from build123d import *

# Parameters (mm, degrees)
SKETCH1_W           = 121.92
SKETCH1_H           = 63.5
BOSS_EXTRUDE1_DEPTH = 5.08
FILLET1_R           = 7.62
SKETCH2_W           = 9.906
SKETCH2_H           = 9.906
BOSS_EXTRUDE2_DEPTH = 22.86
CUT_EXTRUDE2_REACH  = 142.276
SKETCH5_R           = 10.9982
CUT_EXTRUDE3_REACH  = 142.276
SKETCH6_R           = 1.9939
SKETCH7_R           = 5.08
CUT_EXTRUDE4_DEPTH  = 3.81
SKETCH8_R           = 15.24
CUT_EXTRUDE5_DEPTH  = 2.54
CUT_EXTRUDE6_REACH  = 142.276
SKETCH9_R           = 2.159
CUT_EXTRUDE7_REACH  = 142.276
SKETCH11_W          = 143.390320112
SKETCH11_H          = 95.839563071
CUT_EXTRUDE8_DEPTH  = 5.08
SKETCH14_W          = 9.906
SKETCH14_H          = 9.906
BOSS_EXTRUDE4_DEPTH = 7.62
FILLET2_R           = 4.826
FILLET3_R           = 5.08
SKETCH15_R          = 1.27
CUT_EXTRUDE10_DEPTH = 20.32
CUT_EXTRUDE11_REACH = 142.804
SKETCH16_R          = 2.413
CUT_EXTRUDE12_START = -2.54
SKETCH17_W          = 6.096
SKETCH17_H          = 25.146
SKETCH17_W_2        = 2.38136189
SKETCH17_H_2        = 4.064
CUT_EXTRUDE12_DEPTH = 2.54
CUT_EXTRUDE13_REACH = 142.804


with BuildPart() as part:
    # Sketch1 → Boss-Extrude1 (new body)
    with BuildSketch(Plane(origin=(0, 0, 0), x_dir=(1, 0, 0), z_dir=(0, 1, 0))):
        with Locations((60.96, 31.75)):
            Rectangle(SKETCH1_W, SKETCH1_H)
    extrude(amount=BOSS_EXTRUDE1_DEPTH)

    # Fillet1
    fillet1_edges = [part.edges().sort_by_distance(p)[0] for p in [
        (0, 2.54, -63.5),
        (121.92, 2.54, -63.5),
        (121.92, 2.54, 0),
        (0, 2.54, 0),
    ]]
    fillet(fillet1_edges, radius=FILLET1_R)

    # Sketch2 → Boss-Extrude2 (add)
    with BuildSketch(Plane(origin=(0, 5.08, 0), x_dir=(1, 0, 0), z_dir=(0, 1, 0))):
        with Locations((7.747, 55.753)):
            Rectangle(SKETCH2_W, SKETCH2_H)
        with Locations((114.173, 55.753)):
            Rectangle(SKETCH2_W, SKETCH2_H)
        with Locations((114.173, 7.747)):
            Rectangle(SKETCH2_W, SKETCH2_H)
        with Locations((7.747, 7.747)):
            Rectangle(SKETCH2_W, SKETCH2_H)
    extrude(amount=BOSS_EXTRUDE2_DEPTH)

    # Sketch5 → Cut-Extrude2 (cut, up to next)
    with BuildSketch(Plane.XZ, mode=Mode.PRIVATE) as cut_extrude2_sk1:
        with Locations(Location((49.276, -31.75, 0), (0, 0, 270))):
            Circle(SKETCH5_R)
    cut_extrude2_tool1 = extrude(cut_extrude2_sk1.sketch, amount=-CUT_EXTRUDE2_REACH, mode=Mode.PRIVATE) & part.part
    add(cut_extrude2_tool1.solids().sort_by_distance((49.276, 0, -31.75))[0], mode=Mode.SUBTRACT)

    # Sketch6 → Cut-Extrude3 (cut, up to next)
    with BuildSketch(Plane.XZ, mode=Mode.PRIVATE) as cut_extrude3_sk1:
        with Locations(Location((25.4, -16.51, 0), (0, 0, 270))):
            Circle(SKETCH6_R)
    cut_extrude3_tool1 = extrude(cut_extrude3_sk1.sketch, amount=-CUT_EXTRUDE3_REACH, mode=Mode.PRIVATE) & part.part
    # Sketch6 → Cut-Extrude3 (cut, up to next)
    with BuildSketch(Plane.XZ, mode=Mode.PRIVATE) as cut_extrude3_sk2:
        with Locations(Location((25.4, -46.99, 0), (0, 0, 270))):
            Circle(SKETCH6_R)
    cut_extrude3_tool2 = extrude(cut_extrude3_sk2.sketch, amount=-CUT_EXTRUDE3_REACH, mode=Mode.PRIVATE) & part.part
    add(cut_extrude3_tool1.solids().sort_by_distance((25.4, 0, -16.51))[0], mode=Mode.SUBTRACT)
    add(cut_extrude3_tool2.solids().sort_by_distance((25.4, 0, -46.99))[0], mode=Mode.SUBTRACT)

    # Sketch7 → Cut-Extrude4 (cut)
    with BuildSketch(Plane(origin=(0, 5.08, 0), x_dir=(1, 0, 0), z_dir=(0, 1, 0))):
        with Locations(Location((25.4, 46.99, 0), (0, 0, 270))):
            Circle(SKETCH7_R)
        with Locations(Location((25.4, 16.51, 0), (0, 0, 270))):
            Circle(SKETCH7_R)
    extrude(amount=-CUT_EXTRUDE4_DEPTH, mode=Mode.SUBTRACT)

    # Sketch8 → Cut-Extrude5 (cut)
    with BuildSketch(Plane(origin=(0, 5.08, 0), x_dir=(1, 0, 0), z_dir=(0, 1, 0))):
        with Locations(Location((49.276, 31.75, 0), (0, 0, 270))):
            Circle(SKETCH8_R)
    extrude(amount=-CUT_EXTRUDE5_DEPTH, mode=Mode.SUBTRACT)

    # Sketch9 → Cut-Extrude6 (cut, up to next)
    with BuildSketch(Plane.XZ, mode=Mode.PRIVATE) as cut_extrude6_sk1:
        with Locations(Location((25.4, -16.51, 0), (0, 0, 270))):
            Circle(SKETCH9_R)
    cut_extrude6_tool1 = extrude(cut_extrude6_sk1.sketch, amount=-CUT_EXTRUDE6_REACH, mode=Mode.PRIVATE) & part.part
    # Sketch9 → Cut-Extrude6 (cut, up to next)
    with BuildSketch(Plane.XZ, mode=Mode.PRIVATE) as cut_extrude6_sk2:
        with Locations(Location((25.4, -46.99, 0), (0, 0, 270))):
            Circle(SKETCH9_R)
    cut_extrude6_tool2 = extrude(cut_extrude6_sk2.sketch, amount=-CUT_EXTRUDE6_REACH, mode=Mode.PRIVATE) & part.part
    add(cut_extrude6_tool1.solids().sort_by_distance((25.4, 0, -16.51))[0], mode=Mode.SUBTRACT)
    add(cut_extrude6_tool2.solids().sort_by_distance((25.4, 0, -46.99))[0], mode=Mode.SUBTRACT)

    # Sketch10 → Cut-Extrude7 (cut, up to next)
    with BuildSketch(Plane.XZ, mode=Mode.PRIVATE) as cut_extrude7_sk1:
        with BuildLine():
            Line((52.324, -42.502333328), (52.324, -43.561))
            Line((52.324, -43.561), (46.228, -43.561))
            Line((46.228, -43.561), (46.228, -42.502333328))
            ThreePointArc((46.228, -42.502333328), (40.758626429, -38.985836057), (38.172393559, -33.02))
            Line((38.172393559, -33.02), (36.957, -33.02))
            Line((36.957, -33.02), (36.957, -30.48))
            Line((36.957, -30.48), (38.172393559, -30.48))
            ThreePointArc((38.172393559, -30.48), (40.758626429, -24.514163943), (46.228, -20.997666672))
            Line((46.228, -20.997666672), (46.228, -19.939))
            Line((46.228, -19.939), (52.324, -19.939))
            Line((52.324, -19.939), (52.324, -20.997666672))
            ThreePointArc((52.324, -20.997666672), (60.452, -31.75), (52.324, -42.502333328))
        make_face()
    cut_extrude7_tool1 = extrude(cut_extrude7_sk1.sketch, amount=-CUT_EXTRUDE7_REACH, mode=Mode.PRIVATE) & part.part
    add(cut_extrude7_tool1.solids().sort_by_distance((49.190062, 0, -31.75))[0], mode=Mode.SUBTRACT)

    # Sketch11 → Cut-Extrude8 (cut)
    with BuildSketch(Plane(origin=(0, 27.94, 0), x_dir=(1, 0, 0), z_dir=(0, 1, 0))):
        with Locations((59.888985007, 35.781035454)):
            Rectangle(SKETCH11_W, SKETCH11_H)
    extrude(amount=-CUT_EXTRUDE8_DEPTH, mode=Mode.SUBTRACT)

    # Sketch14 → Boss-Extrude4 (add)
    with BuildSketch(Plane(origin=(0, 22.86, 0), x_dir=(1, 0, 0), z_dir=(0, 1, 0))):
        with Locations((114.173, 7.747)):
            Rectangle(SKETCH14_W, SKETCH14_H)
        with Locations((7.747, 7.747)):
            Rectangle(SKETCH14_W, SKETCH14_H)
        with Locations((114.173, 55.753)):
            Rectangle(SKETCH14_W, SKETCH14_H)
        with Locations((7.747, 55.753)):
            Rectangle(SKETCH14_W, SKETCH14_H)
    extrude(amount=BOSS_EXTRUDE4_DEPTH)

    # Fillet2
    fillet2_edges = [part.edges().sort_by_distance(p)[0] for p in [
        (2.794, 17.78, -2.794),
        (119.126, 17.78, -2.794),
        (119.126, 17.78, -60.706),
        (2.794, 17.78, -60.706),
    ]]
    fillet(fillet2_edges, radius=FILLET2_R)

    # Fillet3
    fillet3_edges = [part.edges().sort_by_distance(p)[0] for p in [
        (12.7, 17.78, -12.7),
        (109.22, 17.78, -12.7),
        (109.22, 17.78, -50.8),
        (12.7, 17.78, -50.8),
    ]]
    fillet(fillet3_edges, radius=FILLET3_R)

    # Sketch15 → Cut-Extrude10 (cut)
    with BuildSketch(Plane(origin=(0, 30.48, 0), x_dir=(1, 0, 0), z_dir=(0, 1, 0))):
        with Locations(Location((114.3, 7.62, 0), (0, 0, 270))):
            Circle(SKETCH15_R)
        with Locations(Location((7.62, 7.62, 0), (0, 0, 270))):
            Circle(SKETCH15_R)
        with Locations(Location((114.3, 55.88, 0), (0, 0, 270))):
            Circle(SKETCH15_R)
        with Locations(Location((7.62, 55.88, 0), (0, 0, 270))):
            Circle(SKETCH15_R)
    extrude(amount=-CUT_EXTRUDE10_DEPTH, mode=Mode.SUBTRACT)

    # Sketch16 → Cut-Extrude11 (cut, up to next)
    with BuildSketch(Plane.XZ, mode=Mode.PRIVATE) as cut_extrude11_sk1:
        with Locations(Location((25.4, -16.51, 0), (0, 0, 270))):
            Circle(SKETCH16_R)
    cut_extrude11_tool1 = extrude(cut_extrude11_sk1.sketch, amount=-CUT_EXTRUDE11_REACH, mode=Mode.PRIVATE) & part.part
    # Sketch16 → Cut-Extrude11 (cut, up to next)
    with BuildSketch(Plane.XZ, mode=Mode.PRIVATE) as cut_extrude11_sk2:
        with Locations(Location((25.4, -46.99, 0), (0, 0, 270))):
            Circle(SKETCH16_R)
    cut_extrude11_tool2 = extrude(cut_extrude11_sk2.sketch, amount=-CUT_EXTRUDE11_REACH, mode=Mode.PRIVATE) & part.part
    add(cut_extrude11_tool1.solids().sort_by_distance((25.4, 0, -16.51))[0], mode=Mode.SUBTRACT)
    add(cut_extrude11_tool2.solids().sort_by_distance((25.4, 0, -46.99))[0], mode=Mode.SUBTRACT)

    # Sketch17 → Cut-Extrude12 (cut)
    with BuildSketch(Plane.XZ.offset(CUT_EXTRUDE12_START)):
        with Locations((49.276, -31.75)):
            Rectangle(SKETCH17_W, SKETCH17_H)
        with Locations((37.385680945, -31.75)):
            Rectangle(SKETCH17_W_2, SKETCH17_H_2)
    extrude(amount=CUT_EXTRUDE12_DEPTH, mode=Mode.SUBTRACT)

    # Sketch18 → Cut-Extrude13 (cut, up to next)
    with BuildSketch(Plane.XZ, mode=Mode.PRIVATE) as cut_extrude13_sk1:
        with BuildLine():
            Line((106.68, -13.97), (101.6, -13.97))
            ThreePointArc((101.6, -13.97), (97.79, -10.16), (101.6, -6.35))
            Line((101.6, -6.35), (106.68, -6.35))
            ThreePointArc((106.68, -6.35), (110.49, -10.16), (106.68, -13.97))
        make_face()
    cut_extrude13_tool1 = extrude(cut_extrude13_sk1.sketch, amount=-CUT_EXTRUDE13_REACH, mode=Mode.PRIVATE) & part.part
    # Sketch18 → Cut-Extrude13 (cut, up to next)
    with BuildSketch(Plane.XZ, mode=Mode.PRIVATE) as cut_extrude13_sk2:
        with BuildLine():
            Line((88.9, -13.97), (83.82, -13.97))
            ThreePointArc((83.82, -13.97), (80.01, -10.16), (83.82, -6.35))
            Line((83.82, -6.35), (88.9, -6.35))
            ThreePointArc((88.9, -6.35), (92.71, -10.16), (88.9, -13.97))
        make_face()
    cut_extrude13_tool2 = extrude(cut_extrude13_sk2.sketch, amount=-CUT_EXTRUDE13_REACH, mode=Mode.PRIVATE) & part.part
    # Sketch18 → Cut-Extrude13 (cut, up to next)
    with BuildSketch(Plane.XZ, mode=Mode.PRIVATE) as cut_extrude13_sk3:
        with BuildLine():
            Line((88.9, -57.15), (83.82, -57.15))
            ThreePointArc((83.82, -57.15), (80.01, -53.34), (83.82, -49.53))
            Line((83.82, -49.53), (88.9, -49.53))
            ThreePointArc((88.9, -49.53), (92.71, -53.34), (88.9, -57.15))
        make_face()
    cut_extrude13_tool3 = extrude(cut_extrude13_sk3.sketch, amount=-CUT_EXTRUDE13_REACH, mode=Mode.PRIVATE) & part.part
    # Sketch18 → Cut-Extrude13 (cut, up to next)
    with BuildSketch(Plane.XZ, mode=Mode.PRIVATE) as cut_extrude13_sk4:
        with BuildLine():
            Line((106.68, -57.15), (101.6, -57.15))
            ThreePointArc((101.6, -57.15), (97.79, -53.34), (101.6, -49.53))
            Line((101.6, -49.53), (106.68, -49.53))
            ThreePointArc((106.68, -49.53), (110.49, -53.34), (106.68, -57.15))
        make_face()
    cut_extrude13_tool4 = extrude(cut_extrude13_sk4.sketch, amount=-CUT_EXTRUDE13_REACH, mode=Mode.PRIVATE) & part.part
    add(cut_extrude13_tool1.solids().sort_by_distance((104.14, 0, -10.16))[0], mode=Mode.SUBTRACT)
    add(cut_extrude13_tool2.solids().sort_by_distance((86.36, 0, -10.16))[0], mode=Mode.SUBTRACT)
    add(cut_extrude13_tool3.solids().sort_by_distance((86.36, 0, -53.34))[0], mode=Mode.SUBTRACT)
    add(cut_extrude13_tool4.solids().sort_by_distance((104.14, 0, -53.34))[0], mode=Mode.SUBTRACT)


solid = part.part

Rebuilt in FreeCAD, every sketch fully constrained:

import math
import FreeCAD as App
import Part
import Sketcher
from FreeCAD import Vector
Q = App.Units.Quantity


def edges_at(feature, points):
    """Names of the edges that pass closest to the given points."""
    edges = feature.Shape.Edges
    near = lambda p: min(range(len(edges)), key=lambda i: edges[i].distToShape(Part.Vertex(*p))[0])
    return sorted({f"Edge{near(p) + 1}" for p in points})

doc = App.newDocument("Part")
body = doc.addObject("PartDesign::Body", "Body")

# Sketch on XZ plane
sketch1 = body.newObject("Sketcher::SketchObject", "Sketch")
sketch1.AttachmentSupport = (doc.getObject("XZ_Plane"), [""])
sketch1.MapMode = "FlatFace"
sketch1.addGeometry([
    Part.LineSegment(Vector(0, -64, 0), Vector(0, 0, 0)),
    Part.LineSegment(Vector(0, 0, 0), Vector(122, 0, 0)),
    Part.LineSegment(Vector(122, 0, 0), Vector(122, -64, 0)),
    Part.LineSegment(Vector(122, -64, 0), Vector(0, -64, 0)),
], False)
sketch1.addConstraint([
    Sketcher.Constraint("Coincident", 0, 2, 1, 1),
    Sketcher.Constraint("Coincident", 1, 2, 2, 1),
    Sketcher.Constraint("Coincident", 2, 2, 3, 1),
    Sketcher.Constraint("Coincident", 3, 2, 0, 1),
    Sketcher.Constraint("Vertical", 0),
    Sketcher.Constraint("Horizontal", 1),
    Sketcher.Constraint("Vertical", 2),
    Sketcher.Constraint("Horizontal", 3),
    Sketcher.Constraint("Coincident", 0, 2, -1, 1),
    Sketcher.Constraint("DistanceX", 1, 1, 1, 2, Q("4.8 in")),
    Sketcher.Constraint("DistanceY", 0, 1, 0, 2, Q("2.5 in")),
])
pad1 = body.newObject("PartDesign::Pad", "Pad")
pad1.Profile = sketch1
pad1.Length = Q("0.2 in")
pad1.Reversed = True
doc.recompute()

fillet = body.newObject("PartDesign::Fillet", "Fillet")
fillet.Base = (pad1, edges_at(pad1, [
    (0, 2.54, -63.5),
    (121.92, 2.54, -63.5),
    (121.92, 2.54, 0),
    (0, 2.54, 0),
]))
fillet.Radius = Q("0.3 in")

# Sketch on XZ plane
sketch2 = body.newObject("Sketcher::SketchObject", "Sketch001")
sketch2.AttachmentSupport = (doc.getObject("XZ_Plane"), [""])
sketch2.MapMode = "FlatFace"
sketch2.AttachmentOffset = App.Placement(Vector(0, 0, -0.2 * 25.4), App.Rotation())
sketch2.addGeometry([
    Part.LineSegment(Vector(3, -61, 0), Vector(3, -51, 0)),  # 0
    Part.LineSegment(Vector(3, -51, 0), Vector(13, -51, 0)),  # 1
    Part.LineSegment(Vector(13, -51, 0), Vector(13, -61, 0)),  # 2
    Part.LineSegment(Vector(13, -61, 0), Vector(3, -61, 0)),  # 3
    Part.LineSegment(Vector(109, -61, 0), Vector(109, -51, 0)),  # 4
    Part.LineSegment(Vector(109, -51, 0), Vector(119, -51, 0)),  # 5
    Part.LineSegment(Vector(119, -51, 0), Vector(119, -61, 0)),  # 6
    Part.LineSegment(Vector(119, -61, 0), Vector(109, -61, 0)),  # 7
    Part.LineSegment(Vector(109, -13, 0), Vector(109, -3, 0)),  # 8
    Part.LineSegment(Vector(109, -3, 0), Vector(119, -3, 0)),  # 9
    Part.LineSegment(Vector(119, -3, 0), Vector(119, -13, 0)),  # 10
    Part.LineSegment(Vector(119, -13, 0), Vector(109, -13, 0)),  # 11
    Part.LineSegment(Vector(3, -13, 0), Vector(3, -3, 0)),  # 12
    Part.LineSegment(Vector(3, -3, 0), Vector(13, -3, 0)),  # 13
    Part.LineSegment(Vector(13, -3, 0), Vector(13, -13, 0)),  # 14
    Part.LineSegment(Vector(13, -13, 0), Vector(3, -13, 0)),  # 15
], False)
sketch2.addConstraint([
    Sketcher.Constraint("Coincident", 0, 2, 1, 1),
    Sketcher.Constraint("Coincident", 1, 2, 2, 1),
    Sketcher.Constraint("Coincident", 2, 2, 3, 1),
    Sketcher.Constraint("Coincident", 3, 2, 0, 1),
    Sketcher.Constraint("Coincident", 4, 2, 5, 1),
    Sketcher.Constraint("Coincident", 5, 2, 6, 1),
    Sketcher.Constraint("Coincident", 6, 2, 7, 1),
    Sketcher.Constraint("Coincident", 7, 2, 4, 1),
    Sketcher.Constraint("Coincident", 8, 2, 9, 1),
    Sketcher.Constraint("Coincident", 9, 2, 10, 1),
    Sketcher.Constraint("Coincident", 10, 2, 11, 1),
    Sketcher.Constraint("Coincident", 11, 2, 8, 1),
    Sketcher.Constraint("Coincident", 12, 2, 13, 1),
    Sketcher.Constraint("Coincident", 13, 2, 14, 1),
    Sketcher.Constraint("Coincident", 14, 2, 15, 1),
    Sketcher.Constraint("Coincident", 15, 2, 12, 1),
    Sketcher.Constraint("Vertical", 0),
    Sketcher.Constraint("Horizontal", 1),
    Sketcher.Constraint("Vertical", 2),
    Sketcher.Constraint("Horizontal", 3),
    Sketcher.Constraint("Vertical", 4),
    Sketcher.Constraint("Horizontal", 5),
    Sketcher.Constraint("Vertical", 6),
    Sketcher.Constraint("Horizontal", 7),
    Sketcher.Constraint("Vertical", 8),
    Sketcher.Constraint("Horizontal", 9),
    Sketcher.Constraint("Vertical", 10),
    Sketcher.Constraint("Horizontal", 11),
    Sketcher.Constraint("Vertical", 12),
    Sketcher.Constraint("Horizontal", 13),
    Sketcher.Constraint("Vertical", 14),
    Sketcher.Constraint("Horizontal", 15),
    Sketcher.Constraint("Horizontal", 1, 2, 4, 2),
    Sketcher.Constraint("Horizontal", 3, 2, 6, 2),
    Sketcher.Constraint("Horizontal", 9, 2, 12, 2),
    Sketcher.Constraint("Horizontal", 11, 2, 14, 2),
    Sketcher.Constraint("Vertical", 7, 2, 8, 2),
    Sketcher.Constraint("Vertical", 6, 2, 9, 2),
    Sketcher.Constraint("Vertical", 3, 2, 12, 2),
    Sketcher.Constraint("Vertical", 2, 2, 13, 2),
    Sketcher.Constraint("Equal", 3, 5),
    Sketcher.Constraint("Equal", 15, 0),
    Sketcher.Constraint("Equal", 6, 8),
    Sketcher.Constraint("DistanceY", 0, 2, -1, 1, Q("2 in")),
    Sketcher.Constraint("DistanceX", 1, 1, 1, 2, Q("0.39 in")),
    Sketcher.Constraint("DistanceX", -1, 1, 1, 2, Q("0.5 in")),
    Sketcher.Constraint("DistanceX", -1, 1, 4, 2, Q("4.3 in")),
    Sketcher.Constraint("DistanceY", 10, 2, -1, 1, Q("0.5 in")),
])
pad2 = body.newObject("PartDesign::Pad", "Pad001")
pad2.Profile = sketch2
pad2.Length = Q("0.9 in")
pad2.Reversed = True

# Sketch on XZ plane
sketch3 = body.newObject("Sketcher::SketchObject", "Sketch002")
sketch3.AttachmentSupport = (doc.getObject("XZ_Plane"), [""])
sketch3.MapMode = "FlatFace"
sketch3.addGeometry(Part.Circle(Vector(49, -32, 0), Vector(0, 0, 1), 11), False)
sketch3.addConstraint([
    Sketcher.Constraint("Diameter", 0, Q("0.866 in")),
    Sketcher.Constraint("DistanceX", -1, 1, 0, 3, Q("1.94 in")),
    Sketcher.Constraint("DistanceY", 0, 3, -1, 1, Q("1.25 in")),
])
pocket1 = body.newObject("PartDesign::Pocket", "Pocket")
pocket1.Profile = sketch3
pocket1.Type = "UpToFirst"

# Sketch on XZ plane
sketch4 = body.newObject("Sketcher::SketchObject", "Sketch003")
sketch4.AttachmentSupport = (doc.getObject("XZ_Plane"), [""])
sketch4.MapMode = "FlatFace"
sketch4.addGeometry(Part.Circle(Vector(25.4, -16.5, 0), Vector(0, 0, 1), 2), False)
sketch4.addConstraint([
    Sketcher.Constraint("Diameter", 0, Q("0.157 in")),
    Sketcher.Constraint("DistanceX", -1, 1, 0, 3, Q("1 in")),
    Sketcher.Constraint("DistanceY", 0, 3, -1, 1, Q("0.65 in")),
])
pocket2 = body.newObject("PartDesign::Pocket", "Pocket001")
pocket2.Profile = sketch4
pocket2.Type = "UpToFirst"

# Sketch on XZ plane
sketch5 = body.newObject("Sketcher::SketchObject", "Sketch004")
sketch5.AttachmentSupport = (doc.getObject("XZ_Plane"), [""])
sketch5.MapMode = "FlatFace"
sketch5.addGeometry(Part.Circle(Vector(25.4, -47, 0), Vector(0, 0, 1), 2), False)
sketch5.addConstraint([
    Sketcher.Constraint("Diameter", 0, Q("0.157 in")),
    Sketcher.Constraint("DistanceX", -1, 1, 0, 3, Q("1 in")),
    Sketcher.Constraint("DistanceY", 0, 3, -1, 1, Q("1.85 in")),
])
pocket3 = body.newObject("PartDesign::Pocket", "Pocket002")
pocket3.Profile = sketch5
pocket3.Type = "UpToFirst"

# Sketch on XZ plane
sketch6 = body.newObject("Sketcher::SketchObject", "Sketch005")
sketch6.AttachmentSupport = (doc.getObject("XZ_Plane"), [""])
sketch6.MapMode = "FlatFace"
sketch6.AttachmentOffset = App.Placement(Vector(0, 0, -0.2 * 25.4), App.Rotation())
sketch6.addGeometry([
    Part.Circle(Vector(25, -47, 0), Vector(0, 0, 1), 5),
    Part.Circle(Vector(25, -17, 0), Vector(0, 0, 1), 5),
], False)
sketch6.addConstraint([
    Sketcher.Constraint("Equal", 0, 1),
    Sketcher.Constraint("Vertical", 0, 3, 1, 3),
    Sketcher.Constraint("Diameter", 0, Q("0.4 in")),
    Sketcher.Constraint("DistanceX", -1, 1, 0, 3, Q("1 in")),
    Sketcher.Constraint("DistanceY", 0, 3, 1, 3, Q("1.2 in")),
    Sketcher.Constraint("DistanceY", 0, 3, -1, 1, Q("1.85 in")),
])
pocket4 = body.newObject("PartDesign::Pocket", "Pocket003")
pocket4.Profile = sketch6
pocket4.Length = Q("0.15 in")
pocket4.Reversed = True

# Sketch on XZ plane
sketch7 = body.newObject("Sketcher::SketchObject", "Sketch006")
sketch7.AttachmentSupport = (doc.getObject("XZ_Plane"), [""])
sketch7.MapMode = "FlatFace"
sketch7.AttachmentOffset = App.Placement(Vector(0, 0, -0.2 * 25.4), App.Rotation())
sketch7.addGeometry(Part.Circle(Vector(49, -32, 0), Vector(0, 0, 1), 15), False)
sketch7.addConstraint([
    Sketcher.Constraint("Diameter", 0, Q("1.2 in")),
    Sketcher.Constraint("DistanceX", -1, 1, 0, 3, Q("1.94 in")),
    Sketcher.Constraint("DistanceY", 0, 3, -1, 1, Q("1.25 in")),
])
pocket5 = body.newObject("PartDesign::Pocket", "Pocket004")
pocket5.Profile = sketch7
pocket5.Length = Q("0.1 in")
pocket5.Reversed = True

# Sketch on XZ plane
sketch8 = body.newObject("Sketcher::SketchObject", "Sketch007")
sketch8.AttachmentSupport = (doc.getObject("XZ_Plane"), [""])
sketch8.MapMode = "FlatFace"
sketch8.addGeometry(Part.Circle(Vector(25.4, -16.5, 0), Vector(0, 0, 1), 2.2), False)
sketch8.addConstraint([
    Sketcher.Constraint("Diameter", 0, Q("0.17 in")),
    Sketcher.Constraint("DistanceX", -1, 1, 0, 3, Q("1 in")),
    Sketcher.Constraint("DistanceY", 0, 3, -1, 1, Q("0.65 in")),
])
pocket6 = body.newObject("PartDesign::Pocket", "Pocket005")
pocket6.Profile = sketch8
pocket6.Length = Q("0.05 in")

# Sketch on XZ plane
sketch9 = body.newObject("Sketcher::SketchObject", "Sketch008")
sketch9.AttachmentSupport = (doc.getObject("XZ_Plane"), [""])
sketch9.MapMode = "FlatFace"
sketch9.addGeometry(Part.Circle(Vector(25.4, -47, 0), Vector(0, 0, 1), 2.2), False)
sketch9.addConstraint([
    Sketcher.Constraint("Diameter", 0, Q("0.17 in")),
    Sketcher.Constraint("DistanceX", -1, 1, 0, 3, Q("1 in")),
    Sketcher.Constraint("DistanceY", 0, 3, -1, 1, Q("1.85 in")),
])
pocket7 = body.newObject("PartDesign::Pocket", "Pocket006")
pocket7.Profile = sketch9
pocket7.Length = Q("0.05 in")

# Sketch on XZ plane
sketch10 = body.newObject("Sketcher::SketchObject", "Sketch009")
sketch10.AttachmentSupport = (doc.getObject("XZ_Plane"), [""])
sketch10.MapMode = "FlatFace"
sketch10.addGeometry([
    Part.LineSegment(Vector(52.3, -43.6, 0), Vector(52.3, -42.5, 0)),  # 0
    Part.ArcOfCircle(Part.Circle(Vector(49.3, -31.8, 0), Vector(0, 0, 1), 11.2), math.radians(-74), math.radians(74)),  # 1
    Part.LineSegment(Vector(52.3, -21, 0), Vector(52.3, -19.9, 0)),  # 2
    Part.LineSegment(Vector(52.3, -19.9, 0), Vector(46.2, -19.9, 0)),  # 3
    Part.LineSegment(Vector(46.2, -19.9, 0), Vector(46.2, -21, 0)),  # 4
    Part.ArcOfCircle(Part.Circle(Vector(49.3, -31.8, 0), Vector(0, 0, 1), 11.2), math.radians(106), math.radians(173)),  # 5
    Part.LineSegment(Vector(38.2, -30.5, 0), Vector(37, -30.5, 0)),  # 6
    Part.LineSegment(Vector(37, -30.5, 0), Vector(37, -33, 0)),  # 7
    Part.LineSegment(Vector(37, -33, 0), Vector(38.2, -33, 0)),  # 8
    Part.ArcOfCircle(Part.Circle(Vector(49.3, -31.7, 0), Vector(0, 0, 1), 11.2), math.radians(-173), math.radians(-106)),  # 9
    Part.LineSegment(Vector(46.2, -42.5, 0), Vector(46.2, -43.6, 0)),  # 10
    Part.LineSegment(Vector(46.2, -43.6, 0), Vector(52.3, -43.6, 0)),  # 11
], False)
sketch10.addConstraint([
    Sketcher.Constraint("Coincident", 0, 2, 1, 1),
    Sketcher.Constraint("Coincident", 1, 2, 2, 1),
    Sketcher.Constraint("Coincident", 2, 2, 3, 1),
    Sketcher.Constraint("Coincident", 3, 2, 4, 1),
    Sketcher.Constraint("Coincident", 4, 2, 5, 1),
    Sketcher.Constraint("Coincident", 5, 2, 6, 1),
    Sketcher.Constraint("Coincident", 6, 2, 7, 1),
    Sketcher.Constraint("Coincident", 7, 2, 8, 1),
    Sketcher.Constraint("Coincident", 8, 2, 9, 1),
    Sketcher.Constraint("Coincident", 9, 2, 10, 1),
    Sketcher.Constraint("Coincident", 10, 2, 11, 1),
    Sketcher.Constraint("Coincident", 11, 2, 0, 1),
    Sketcher.Constraint("Vertical", 0),
    Sketcher.Constraint("Vertical", 2),
    Sketcher.Constraint("Horizontal", 3),
    Sketcher.Constraint("Vertical", 4),
    Sketcher.Constraint("Horizontal", 6),
    Sketcher.Constraint("Vertical", 7),
    Sketcher.Constraint("Horizontal", 8),
    Sketcher.Constraint("Vertical", 10),
    Sketcher.Constraint("Horizontal", 11),
    Sketcher.Constraint("Coincident", 5, 3, 1, 3),
    Sketcher.Constraint("Coincident", 9, 3, 1, 3),
    Sketcher.Constraint("Equal", 1, 5),
    Sketcher.Constraint("Equal", 5, 9),
    Sketcher.Constraint("Horizontal", 1, 2, 4, 2),
    Sketcher.Constraint("Horizontal", 0, 2, 9, 2),
    Sketcher.Constraint("Vertical", 0, 2, 1, 2),
    Sketcher.Constraint("Vertical", 5, 2, 8, 2),
    Sketcher.Constraint("Equal", 0, 2),
    Sketcher.Constraint("Radius", 1, Q("0.44 in")),
    Sketcher.Constraint("DistanceY", 7, 2, 7, 1, Q("0.1 in")),
    Sketcher.Constraint("DistanceX", 3, 2, 3, 1, Q("0.24 in")),
    Sketcher.Constraint("DistanceY", 5, 2, -1, 1, Q("1.2 in")),
    Sketcher.Constraint("DistanceX", -1, 1, 1, 3, Q("1.94 in")),
    Sketcher.Constraint("DistanceY", 2, 2, -1, 1, Q("0.785 in")),
    Sketcher.Constraint("DistanceX", -1, 1, 6, 2, Q("1.455 in")),
])
pocket8 = body.newObject("PartDesign::Pocket", "Pocket007")
pocket8.Profile = sketch10
pocket8.Length = Q("0.1 in")

# Sketch on XZ plane
sketch11 = body.newObject("Sketcher::SketchObject", "Sketch010")
sketch11.AttachmentSupport = (doc.getObject("XZ_Plane"), [""])
sketch11.MapMode = "FlatFace"
sketch11.AttachmentOffset = App.Placement(Vector(0, 0, -1.1 * 25.4), App.Rotation())
sketch11.addGeometry([
    Part.LineSegment(Vector(-12, -84, 0), Vector(-12, 12, 0)),
    Part.LineSegment(Vector(-12, 12, 0), Vector(132, 12, 0)),
    Part.LineSegment(Vector(132, 12, 0), Vector(132, -84, 0)),
    Part.LineSegment(Vector(132, -84, 0), Vector(-12, -84, 0)),
], False)
sketch11.addConstraint([
    Sketcher.Constraint("Coincident", 0, 2, 1, 1),
    Sketcher.Constraint("Coincident", 1, 2, 2, 1),
    Sketcher.Constraint("Coincident", 2, 2, 3, 1),
    Sketcher.Constraint("Coincident", 3, 2, 0, 1),
    Sketcher.Constraint("Vertical", 0),
    Sketcher.Constraint("Horizontal", 1),
    Sketcher.Constraint("Vertical", 2),
    Sketcher.Constraint("Horizontal", 3),
    Sketcher.Constraint("DistanceX", 1, 1, 1, 2, Q("143.39032 mm")),
    Sketcher.Constraint("DistanceY", 0, 1, 0, 2, Q("95.839563 mm")),
    Sketcher.Constraint("DistanceX", 0, 2, -1, 1, Q("11.806175 mm")),
    Sketcher.Constraint("DistanceY", -1, 1, 0, 2, Q("12.138746 mm")),
])
pocket9 = body.newObject("PartDesign::Pocket", "Pocket008")
pocket9.Profile = sketch11
pocket9.Length = Q("0.2 in")
pocket9.Reversed = True

# Sketch on XZ plane
sketch12 = body.newObject("Sketcher::SketchObject", "Sketch011")
sketch12.AttachmentSupport = (doc.getObject("XZ_Plane"), [""])
sketch12.MapMode = "FlatFace"
sketch12.AttachmentOffset = App.Placement(Vector(0, 0, -0.9 * 25.4), App.Rotation())
sketch12.addGeometry([
    Part.LineSegment(Vector(109, -13, 0), Vector(109, -3, 0)),  # 0
    Part.LineSegment(Vector(109, -3, 0), Vector(119, -3, 0)),  # 1
    Part.LineSegment(Vector(119, -3, 0), Vector(119, -13, 0)),  # 2
    Part.LineSegment(Vector(119, -13, 0), Vector(109, -13, 0)),  # 3
    Part.LineSegment(Vector(3, -13, 0), Vector(3, -3, 0)),  # 4
    Part.LineSegment(Vector(3, -3, 0), Vector(13, -3, 0)),  # 5
    Part.LineSegment(Vector(13, -3, 0), Vector(13, -13, 0)),  # 6
    Part.LineSegment(Vector(13, -13, 0), Vector(3, -13, 0)),  # 7
    Part.LineSegment(Vector(109, -61, 0), Vector(109, -51, 0)),  # 8
    Part.LineSegment(Vector(109, -51, 0), Vector(119, -51, 0)),  # 9
    Part.LineSegment(Vector(119, -51, 0), Vector(119, -61, 0)),  # 10
    Part.LineSegment(Vector(119, -61, 0), Vector(109, -61, 0)),  # 11
    Part.LineSegment(Vector(3, -61, 0), Vector(3, -51, 0)),  # 12
    Part.LineSegment(Vector(3, -51, 0), Vector(13, -51, 0)),  # 13
    Part.LineSegment(Vector(13, -51, 0), Vector(13, -61, 0)),  # 14
    Part.LineSegment(Vector(13, -61, 0), Vector(3, -61, 0)),  # 15
], False)
sketch12.addConstraint([
    Sketcher.Constraint("Coincident", 0, 2, 1, 1),
    Sketcher.Constraint("Coincident", 1, 2, 2, 1),
    Sketcher.Constraint("Coincident", 2, 2, 3, 1),
    Sketcher.Constraint("Coincident", 3, 2, 0, 1),
    Sketcher.Constraint("Coincident", 4, 2, 5, 1),
    Sketcher.Constraint("Coincident", 5, 2, 6, 1),
    Sketcher.Constraint("Coincident", 6, 2, 7, 1),
    Sketcher.Constraint("Coincident", 7, 2, 4, 1),
    Sketcher.Constraint("Coincident", 8, 2, 9, 1),
    Sketcher.Constraint("Coincident", 9, 2, 10, 1),
    Sketcher.Constraint("Coincident", 10, 2, 11, 1),
    Sketcher.Constraint("Coincident", 11, 2, 8, 1),
    Sketcher.Constraint("Coincident", 12, 2, 13, 1),
    Sketcher.Constraint("Coincident", 13, 2, 14, 1),
    Sketcher.Constraint("Coincident", 14, 2, 15, 1),
    Sketcher.Constraint("Coincident", 15, 2, 12, 1),
    Sketcher.Constraint("Vertical", 0),
    Sketcher.Constraint("Horizontal", 1),
    Sketcher.Constraint("Vertical", 2),
    Sketcher.Constraint("Horizontal", 3),
    Sketcher.Constraint("Vertical", 4),
    Sketcher.Constraint("Horizontal", 5),
    Sketcher.Constraint("Vertical", 6),
    Sketcher.Constraint("Horizontal", 7),
    Sketcher.Constraint("Vertical", 8),
    Sketcher.Constraint("Horizontal", 9),
    Sketcher.Constraint("Vertical", 10),
    Sketcher.Constraint("Horizontal", 11),
    Sketcher.Constraint("Vertical", 12),
    Sketcher.Constraint("Horizontal", 13),
    Sketcher.Constraint("Vertical", 14),
    Sketcher.Constraint("Horizontal", 15),
    Sketcher.Constraint("Horizontal", 1, 2, 4, 2),
    Sketcher.Constraint("Horizontal", 3, 2, 6, 2),
    Sketcher.Constraint("Horizontal", 9, 2, 12, 2),
    Sketcher.Constraint("Horizontal", 11, 2, 14, 2),
    Sketcher.Constraint("Vertical", 3, 2, 8, 2),
    Sketcher.Constraint("Vertical", 2, 2, 9, 2),
    Sketcher.Constraint("Vertical", 7, 2, 12, 2),
    Sketcher.Constraint("Vertical", 6, 2, 13, 2),
    Sketcher.Constraint("Equal", 3, 5),
    Sketcher.Constraint("Equal", 15, 0),
    Sketcher.Constraint("Equal", 6, 8),
    Sketcher.Constraint("DistanceY", 8, 2, -1, 1, Q("2 in")),
    Sketcher.Constraint("DistanceX", 1, 1, 1, 2, Q("0.39 in")),
    Sketcher.Constraint("DistanceX", -1, 1, 0, 2, Q("4.3 in")),
    Sketcher.Constraint("DistanceY", 2, 2, -1, 1, Q("0.5 in")),
    Sketcher.Constraint("DistanceX", -1, 1, 5, 2, Q("0.5 in")),
])
pad3 = body.newObject("PartDesign::Pad", "Pad002")
pad3.Profile = sketch12
pad3.Length = Q("0.3 in")
pad3.Reversed = True
doc.recompute()

fillet2 = body.newObject("PartDesign::Fillet", "Fillet001")
fillet2.Base = (pad3, edges_at(pad3, [
    (2.794, 17.78, -2.794),
    (119.126, 17.78, -2.794),
    (119.126, 17.78, -60.706),
    (2.794, 17.78, -60.706),
]))
fillet2.Radius = Q("0.19 in")
doc.recompute()

fillet3 = body.newObject("PartDesign::Fillet", "Fillet002")
fillet3.Base = (fillet2, edges_at(fillet2, [
    (12.7, 17.78, -12.7),
    (109.22, 17.78, -12.7),
    (109.22, 17.78, -50.8),
    (12.7, 17.78, -50.8),
]))
fillet3.Radius = Q("0.2 in")

# Sketch on XZ plane
sketch13 = body.newObject("Sketcher::SketchObject", "Sketch012")
sketch13.AttachmentSupport = (doc.getObject("XZ_Plane"), [""])
sketch13.MapMode = "FlatFace"
sketch13.AttachmentOffset = App.Placement(Vector(0, 0, -1.2 * 25.4), App.Rotation())
sketch13.addGeometry([
    Part.Circle(Vector(114.3, -7.6, 0), Vector(0, 0, 1), 1.3),
    Part.Circle(Vector(7.6, -7.6, 0), Vector(0, 0, 1), 1.3),
    Part.Circle(Vector(114.3, -55.9, 0), Vector(0, 0, 1), 1.3),
    Part.Circle(Vector(7.6, -55.9, 0), Vector(0, 0, 1), 1.3),
], False)
sketch13.addConstraint([
    Sketcher.Constraint("Equal", 0, 1),
    Sketcher.Constraint("Equal", 1, 2),
    Sketcher.Constraint("Equal", 2, 3),
    Sketcher.Constraint("Horizontal", 0, 3, 1, 3),
    Sketcher.Constraint("Horizontal", 2, 3, 3, 3),
    Sketcher.Constraint("Vertical", 0, 3, 2, 3),
    Sketcher.Constraint("Vertical", 1, 3, 3, 3),
    Sketcher.Constraint("Diameter", 0, Q("0.1 in")),
    Sketcher.Constraint("DistanceX", -1, 1, 0, 3, Q("4.5 in")),
    Sketcher.Constraint("DistanceY", 0, 3, -1, 1, Q("0.3 in")),
    Sketcher.Constraint("DistanceX", -1, 1, 1, 3, Q("0.3 in")),
    Sketcher.Constraint("DistanceY", 2, 3, -1, 1, Q("2.2 in")),
])
pocket10 = body.newObject("PartDesign::Pocket", "Pocket009")
pocket10.Profile = sketch13
pocket10.Length = Q("0.8 in")
pocket10.Reversed = True

# Sketch on XZ plane
sketch14 = body.newObject("Sketcher::SketchObject", "Sketch013")
sketch14.AttachmentSupport = (doc.getObject("XZ_Plane"), [""])
sketch14.MapMode = "FlatFace"
sketch14.addGeometry(Part.Circle(Vector(25.4, -16.5, 0), Vector(0, 0, 1), 2.4), False)
sketch14.addConstraint([
    Sketcher.Constraint("Diameter", 0, Q("0.19 in")),
    Sketcher.Constraint("DistanceX", -1, 1, 0, 3, Q("1 in")),
    Sketcher.Constraint("DistanceY", 0, 3, -1, 1, Q("0.65 in")),
])
pocket11 = body.newObject("PartDesign::Pocket", "Pocket010")
pocket11.Profile = sketch14
pocket11.Length = Q("0.05 in")

# Sketch on XZ plane
sketch15 = body.newObject("Sketcher::SketchObject", "Sketch014")
sketch15.AttachmentSupport = (doc.getObject("XZ_Plane"), [""])
sketch15.MapMode = "FlatFace"
sketch15.addGeometry(Part.Circle(Vector(25.4, -47, 0), Vector(0, 0, 1), 2.4), False)
sketch15.addConstraint([
    Sketcher.Constraint("Diameter", 0, Q("0.19 in")),
    Sketcher.Constraint("DistanceX", -1, 1, 0, 3, Q("1 in")),
    Sketcher.Constraint("DistanceY", 0, 3, -1, 1, Q("1.85 in")),
])
pocket12 = body.newObject("PartDesign::Pocket", "Pocket011")
pocket12.Profile = sketch15
pocket12.Length = Q("0.05 in")

# Sketch on XZ plane
sketch16 = body.newObject("Sketcher::SketchObject", "Sketch015")
sketch16.AttachmentSupport = (doc.getObject("XZ_Plane"), [""])
sketch16.MapMode = "FlatFace"
sketch16.AttachmentOffset = App.Placement(Vector(0, 0, -0.1 * 25.4), App.Rotation())
sketch16.addGeometry([
    Part.LineSegment(Vector(46.2, -19.2, 0), Vector(46.2, -44.3, 0)),  # 0
    Part.LineSegment(Vector(46.2, -44.3, 0), Vector(52.3, -44.3, 0)),  # 1
    Part.LineSegment(Vector(52.3, -44.3, 0), Vector(52.3, -19.2, 0)),  # 2
    Part.LineSegment(Vector(52.3, -19.2, 0), Vector(46.2, -19.2, 0)),  # 3
    Part.LineSegment(Vector(36.2, -29.7, 0), Vector(36.2, -33.8, 0)),  # 4
    Part.LineSegment(Vector(36.2, -33.8, 0), Vector(38.6, -33.8, 0)),  # 5
    Part.LineSegment(Vector(38.6, -33.8, 0), Vector(38.6, -29.7, 0)),  # 6
    Part.LineSegment(Vector(38.6, -29.7, 0), Vector(36.2, -29.7, 0)),  # 7
], False)
sketch16.addConstraint([
    Sketcher.Constraint("Coincident", 0, 2, 1, 1),
    Sketcher.Constraint("Coincident", 1, 2, 2, 1),
    Sketcher.Constraint("Coincident", 2, 2, 3, 1),
    Sketcher.Constraint("Coincident", 3, 2, 0, 1),
    Sketcher.Constraint("Coincident", 4, 2, 5, 1),
    Sketcher.Constraint("Coincident", 5, 2, 6, 1),
    Sketcher.Constraint("Coincident", 6, 2, 7, 1),
    Sketcher.Constraint("Coincident", 7, 2, 4, 1),
    Sketcher.Constraint("Vertical", 0),
    Sketcher.Constraint("Horizontal", 1),
    Sketcher.Constraint("Vertical", 2),
    Sketcher.Constraint("Horizontal", 3),
    Sketcher.Constraint("Vertical", 4),
    Sketcher.Constraint("Horizontal", 5),
    Sketcher.Constraint("Vertical", 6),
    Sketcher.Constraint("Horizontal", 7),
    Sketcher.Constraint("DistanceX", 1, 1, 1, 2, Q("0.24 in")),
    Sketcher.Constraint("DistanceY", 0, 2, 0, 1, Q("0.99 in")),
    Sketcher.Constraint("DistanceY", 4, 2, 4, 1, Q("0.16 in")),
    Sketcher.Constraint("DistanceX", -1, 1, 0, 2, Q("1.82 in")),
    Sketcher.Constraint("DistanceY", 4, 2, -1, 1, Q("1.33 in")),
    Sketcher.Constraint("DistanceY", 0, 2, -1, 1, Q("1.745 in")),
    Sketcher.Constraint("DistanceX", -1, 1, 4, 2, Q("1.425 in")),
    Sketcher.Constraint("DistanceX", 5, 1, 5, 2, Q("2.381362 mm")),
])
pocket13 = body.newObject("PartDesign::Pocket", "Pocket012")
pocket13.Profile = sketch16
pocket13.Length = Q("0.1 in")
pocket13.Reversed = True

# Sketch on XZ plane
sketch17 = body.newObject("Sketcher::SketchObject", "Sketch016")
sketch17.AttachmentSupport = (doc.getObject("XZ_Plane"), [""])
sketch17.MapMode = "FlatFace"
sketch17.addGeometry([
    Part.LineSegment(Vector(101.6, -14, 0), Vector(106.7, -14, 0)),
    Part.ArcOfCircle(Part.Circle(Vector(106.7, -10.2, 0), Vector(0, 0, 1), 3.8), math.radians(-90), math.radians(90)),
    Part.LineSegment(Vector(106.7, -6.3, 0), Vector(101.6, -6.3, 0)),
    Part.ArcOfCircle(Part.Circle(Vector(101.6, -10.2, 0), Vector(0, 0, 1), 3.8), math.radians(90), math.radians(270)),
], False)
sketch17.addConstraint([
    Sketcher.Constraint("Tangent", 0, 2, 1, 1),
    Sketcher.Constraint("Tangent", 1, 2, 2, 1),
    Sketcher.Constraint("Tangent", 2, 2, 3, 1),
    Sketcher.Constraint("Tangent", 3, 2, 0, 1),
    Sketcher.Constraint("Horizontal", 0),
    Sketcher.Constraint("Horizontal", 2),
    Sketcher.Constraint("Radius", 1, Q("0.15 in")),
    Sketcher.Constraint("DistanceX", 0, 1, 0, 2, Q("0.2 in")),
    Sketcher.Constraint("DistanceX", -1, 1, 3, 3, Q("4 in")),
    Sketcher.Constraint("DistanceY", 1, 3, -1, 1, Q("0.4 in")),
])
pocket14 = body.newObject("PartDesign::Pocket", "Pocket013")
pocket14.Profile = sketch17
pocket14.Length = Q("1.2 in")

# Sketch on XZ plane
sketch18 = body.newObject("Sketcher::SketchObject", "Sketch017")
sketch18.AttachmentSupport = (doc.getObject("XZ_Plane"), [""])
sketch18.MapMode = "FlatFace"
sketch18.addGeometry([
    Part.LineSegment(Vector(83.8, -14, 0), Vector(88.9, -14, 0)),
    Part.ArcOfCircle(Part.Circle(Vector(88.9, -10.2, 0), Vector(0, 0, 1), 3.8), math.radians(-90), math.radians(90)),
    Part.LineSegment(Vector(88.9, -6.3, 0), Vector(83.8, -6.3, 0)),
    Part.ArcOfCircle(Part.Circle(Vector(83.8, -10.2, 0), Vector(0, 0, 1), 3.8), math.radians(90), math.radians(270)),
], False)
sketch18.addConstraint([
    Sketcher.Constraint("Tangent", 0, 2, 1, 1),
    Sketcher.Constraint("Tangent", 1, 2, 2, 1),
    Sketcher.Constraint("Tangent", 2, 2, 3, 1),
    Sketcher.Constraint("Tangent", 3, 2, 0, 1),
    Sketcher.Constraint("Horizontal", 0),
    Sketcher.Constraint("Horizontal", 2),
    Sketcher.Constraint("Radius", 1, Q("0.15 in")),
    Sketcher.Constraint("DistanceX", 0, 1, 0, 2, Q("0.2 in")),
    Sketcher.Constraint("DistanceX", -1, 1, 1, 3, Q("3.5 in")),
    Sketcher.Constraint("DistanceY", 1, 3, -1, 1, Q("0.4 in")),
])
pocket15 = body.newObject("PartDesign::Pocket", "Pocket014")
pocket15.Profile = sketch18
pocket15.Type = "UpToFirst"

# Sketch on XZ plane
sketch19 = body.newObject("Sketcher::SketchObject", "Sketch018")
sketch19.AttachmentSupport = (doc.getObject("XZ_Plane"), [""])
sketch19.MapMode = "FlatFace"
sketch19.addGeometry([
    Part.LineSegment(Vector(83.8, -57.1, 0), Vector(88.9, -57.1, 0)),
    Part.ArcOfCircle(Part.Circle(Vector(88.9, -53.3, 0), Vector(0, 0, 1), 3.8), math.radians(-90), math.radians(90)),
    Part.LineSegment(Vector(88.9, -49.5, 0), Vector(83.8, -49.5, 0)),
    Part.ArcOfCircle(Part.Circle(Vector(83.8, -53.3, 0), Vector(0, 0, 1), 3.8), math.radians(90), math.radians(270)),
], False)
sketch19.addConstraint([
    Sketcher.Constraint("Tangent", 0, 2, 1, 1),
    Sketcher.Constraint("Tangent", 1, 2, 2, 1),
    Sketcher.Constraint("Tangent", 2, 2, 3, 1),
    Sketcher.Constraint("Tangent", 3, 2, 0, 1),
    Sketcher.Constraint("Horizontal", 0),
    Sketcher.Constraint("Horizontal", 2),
    Sketcher.Constraint("Radius", 1, Q("0.15 in")),
    Sketcher.Constraint("DistanceX", 0, 1, 0, 2, Q("0.2 in")),
    Sketcher.Constraint("DistanceX", -1, 1, 1, 3, Q("3.5 in")),
    Sketcher.Constraint("DistanceY", 1, 3, -1, 1, Q("2.1 in")),
])
pocket16 = body.newObject("PartDesign::Pocket", "Pocket015")
pocket16.Profile = sketch19
pocket16.Type = "UpToFirst"

# Sketch on XZ plane
sketch20 = body.newObject("Sketcher::SketchObject", "Sketch019")
sketch20.AttachmentSupport = (doc.getObject("XZ_Plane"), [""])
sketch20.MapMode = "FlatFace"
sketch20.addGeometry([
    Part.LineSegment(Vector(101.6, -57.1, 0), Vector(106.7, -57.1, 0)),
    Part.ArcOfCircle(Part.Circle(Vector(106.7, -53.3, 0), Vector(0, 0, 1), 3.8), math.radians(-90), math.radians(90)),
    Part.LineSegment(Vector(106.7, -49.5, 0), Vector(101.6, -49.5, 0)),
    Part.ArcOfCircle(Part.Circle(Vector(101.6, -53.3, 0), Vector(0, 0, 1), 3.8), math.radians(90), math.radians(270)),
], False)
sketch20.addConstraint([
    Sketcher.Constraint("Tangent", 0, 2, 1, 1),
    Sketcher.Constraint("Tangent", 1, 2, 2, 1),
    Sketcher.Constraint("Tangent", 2, 2, 3, 1),
    Sketcher.Constraint("Tangent", 3, 2, 0, 1),
    Sketcher.Constraint("Horizontal", 0),
    Sketcher.Constraint("Horizontal", 2),
    Sketcher.Constraint("Radius", 1, Q("0.15 in")),
    Sketcher.Constraint("DistanceX", 0, 1, 0, 2, Q("0.2 in")),
    Sketcher.Constraint("DistanceX", -1, 1, 3, 3, Q("4 in")),
    Sketcher.Constraint("DistanceY", 1, 3, -1, 1, Q("2.1 in")),
])
pocket17 = body.newObject("PartDesign::Pocket", "Pocket016")
pocket17.Profile = sketch20
pocket17.Length = Q("1.2 in")

doc.recompute()
